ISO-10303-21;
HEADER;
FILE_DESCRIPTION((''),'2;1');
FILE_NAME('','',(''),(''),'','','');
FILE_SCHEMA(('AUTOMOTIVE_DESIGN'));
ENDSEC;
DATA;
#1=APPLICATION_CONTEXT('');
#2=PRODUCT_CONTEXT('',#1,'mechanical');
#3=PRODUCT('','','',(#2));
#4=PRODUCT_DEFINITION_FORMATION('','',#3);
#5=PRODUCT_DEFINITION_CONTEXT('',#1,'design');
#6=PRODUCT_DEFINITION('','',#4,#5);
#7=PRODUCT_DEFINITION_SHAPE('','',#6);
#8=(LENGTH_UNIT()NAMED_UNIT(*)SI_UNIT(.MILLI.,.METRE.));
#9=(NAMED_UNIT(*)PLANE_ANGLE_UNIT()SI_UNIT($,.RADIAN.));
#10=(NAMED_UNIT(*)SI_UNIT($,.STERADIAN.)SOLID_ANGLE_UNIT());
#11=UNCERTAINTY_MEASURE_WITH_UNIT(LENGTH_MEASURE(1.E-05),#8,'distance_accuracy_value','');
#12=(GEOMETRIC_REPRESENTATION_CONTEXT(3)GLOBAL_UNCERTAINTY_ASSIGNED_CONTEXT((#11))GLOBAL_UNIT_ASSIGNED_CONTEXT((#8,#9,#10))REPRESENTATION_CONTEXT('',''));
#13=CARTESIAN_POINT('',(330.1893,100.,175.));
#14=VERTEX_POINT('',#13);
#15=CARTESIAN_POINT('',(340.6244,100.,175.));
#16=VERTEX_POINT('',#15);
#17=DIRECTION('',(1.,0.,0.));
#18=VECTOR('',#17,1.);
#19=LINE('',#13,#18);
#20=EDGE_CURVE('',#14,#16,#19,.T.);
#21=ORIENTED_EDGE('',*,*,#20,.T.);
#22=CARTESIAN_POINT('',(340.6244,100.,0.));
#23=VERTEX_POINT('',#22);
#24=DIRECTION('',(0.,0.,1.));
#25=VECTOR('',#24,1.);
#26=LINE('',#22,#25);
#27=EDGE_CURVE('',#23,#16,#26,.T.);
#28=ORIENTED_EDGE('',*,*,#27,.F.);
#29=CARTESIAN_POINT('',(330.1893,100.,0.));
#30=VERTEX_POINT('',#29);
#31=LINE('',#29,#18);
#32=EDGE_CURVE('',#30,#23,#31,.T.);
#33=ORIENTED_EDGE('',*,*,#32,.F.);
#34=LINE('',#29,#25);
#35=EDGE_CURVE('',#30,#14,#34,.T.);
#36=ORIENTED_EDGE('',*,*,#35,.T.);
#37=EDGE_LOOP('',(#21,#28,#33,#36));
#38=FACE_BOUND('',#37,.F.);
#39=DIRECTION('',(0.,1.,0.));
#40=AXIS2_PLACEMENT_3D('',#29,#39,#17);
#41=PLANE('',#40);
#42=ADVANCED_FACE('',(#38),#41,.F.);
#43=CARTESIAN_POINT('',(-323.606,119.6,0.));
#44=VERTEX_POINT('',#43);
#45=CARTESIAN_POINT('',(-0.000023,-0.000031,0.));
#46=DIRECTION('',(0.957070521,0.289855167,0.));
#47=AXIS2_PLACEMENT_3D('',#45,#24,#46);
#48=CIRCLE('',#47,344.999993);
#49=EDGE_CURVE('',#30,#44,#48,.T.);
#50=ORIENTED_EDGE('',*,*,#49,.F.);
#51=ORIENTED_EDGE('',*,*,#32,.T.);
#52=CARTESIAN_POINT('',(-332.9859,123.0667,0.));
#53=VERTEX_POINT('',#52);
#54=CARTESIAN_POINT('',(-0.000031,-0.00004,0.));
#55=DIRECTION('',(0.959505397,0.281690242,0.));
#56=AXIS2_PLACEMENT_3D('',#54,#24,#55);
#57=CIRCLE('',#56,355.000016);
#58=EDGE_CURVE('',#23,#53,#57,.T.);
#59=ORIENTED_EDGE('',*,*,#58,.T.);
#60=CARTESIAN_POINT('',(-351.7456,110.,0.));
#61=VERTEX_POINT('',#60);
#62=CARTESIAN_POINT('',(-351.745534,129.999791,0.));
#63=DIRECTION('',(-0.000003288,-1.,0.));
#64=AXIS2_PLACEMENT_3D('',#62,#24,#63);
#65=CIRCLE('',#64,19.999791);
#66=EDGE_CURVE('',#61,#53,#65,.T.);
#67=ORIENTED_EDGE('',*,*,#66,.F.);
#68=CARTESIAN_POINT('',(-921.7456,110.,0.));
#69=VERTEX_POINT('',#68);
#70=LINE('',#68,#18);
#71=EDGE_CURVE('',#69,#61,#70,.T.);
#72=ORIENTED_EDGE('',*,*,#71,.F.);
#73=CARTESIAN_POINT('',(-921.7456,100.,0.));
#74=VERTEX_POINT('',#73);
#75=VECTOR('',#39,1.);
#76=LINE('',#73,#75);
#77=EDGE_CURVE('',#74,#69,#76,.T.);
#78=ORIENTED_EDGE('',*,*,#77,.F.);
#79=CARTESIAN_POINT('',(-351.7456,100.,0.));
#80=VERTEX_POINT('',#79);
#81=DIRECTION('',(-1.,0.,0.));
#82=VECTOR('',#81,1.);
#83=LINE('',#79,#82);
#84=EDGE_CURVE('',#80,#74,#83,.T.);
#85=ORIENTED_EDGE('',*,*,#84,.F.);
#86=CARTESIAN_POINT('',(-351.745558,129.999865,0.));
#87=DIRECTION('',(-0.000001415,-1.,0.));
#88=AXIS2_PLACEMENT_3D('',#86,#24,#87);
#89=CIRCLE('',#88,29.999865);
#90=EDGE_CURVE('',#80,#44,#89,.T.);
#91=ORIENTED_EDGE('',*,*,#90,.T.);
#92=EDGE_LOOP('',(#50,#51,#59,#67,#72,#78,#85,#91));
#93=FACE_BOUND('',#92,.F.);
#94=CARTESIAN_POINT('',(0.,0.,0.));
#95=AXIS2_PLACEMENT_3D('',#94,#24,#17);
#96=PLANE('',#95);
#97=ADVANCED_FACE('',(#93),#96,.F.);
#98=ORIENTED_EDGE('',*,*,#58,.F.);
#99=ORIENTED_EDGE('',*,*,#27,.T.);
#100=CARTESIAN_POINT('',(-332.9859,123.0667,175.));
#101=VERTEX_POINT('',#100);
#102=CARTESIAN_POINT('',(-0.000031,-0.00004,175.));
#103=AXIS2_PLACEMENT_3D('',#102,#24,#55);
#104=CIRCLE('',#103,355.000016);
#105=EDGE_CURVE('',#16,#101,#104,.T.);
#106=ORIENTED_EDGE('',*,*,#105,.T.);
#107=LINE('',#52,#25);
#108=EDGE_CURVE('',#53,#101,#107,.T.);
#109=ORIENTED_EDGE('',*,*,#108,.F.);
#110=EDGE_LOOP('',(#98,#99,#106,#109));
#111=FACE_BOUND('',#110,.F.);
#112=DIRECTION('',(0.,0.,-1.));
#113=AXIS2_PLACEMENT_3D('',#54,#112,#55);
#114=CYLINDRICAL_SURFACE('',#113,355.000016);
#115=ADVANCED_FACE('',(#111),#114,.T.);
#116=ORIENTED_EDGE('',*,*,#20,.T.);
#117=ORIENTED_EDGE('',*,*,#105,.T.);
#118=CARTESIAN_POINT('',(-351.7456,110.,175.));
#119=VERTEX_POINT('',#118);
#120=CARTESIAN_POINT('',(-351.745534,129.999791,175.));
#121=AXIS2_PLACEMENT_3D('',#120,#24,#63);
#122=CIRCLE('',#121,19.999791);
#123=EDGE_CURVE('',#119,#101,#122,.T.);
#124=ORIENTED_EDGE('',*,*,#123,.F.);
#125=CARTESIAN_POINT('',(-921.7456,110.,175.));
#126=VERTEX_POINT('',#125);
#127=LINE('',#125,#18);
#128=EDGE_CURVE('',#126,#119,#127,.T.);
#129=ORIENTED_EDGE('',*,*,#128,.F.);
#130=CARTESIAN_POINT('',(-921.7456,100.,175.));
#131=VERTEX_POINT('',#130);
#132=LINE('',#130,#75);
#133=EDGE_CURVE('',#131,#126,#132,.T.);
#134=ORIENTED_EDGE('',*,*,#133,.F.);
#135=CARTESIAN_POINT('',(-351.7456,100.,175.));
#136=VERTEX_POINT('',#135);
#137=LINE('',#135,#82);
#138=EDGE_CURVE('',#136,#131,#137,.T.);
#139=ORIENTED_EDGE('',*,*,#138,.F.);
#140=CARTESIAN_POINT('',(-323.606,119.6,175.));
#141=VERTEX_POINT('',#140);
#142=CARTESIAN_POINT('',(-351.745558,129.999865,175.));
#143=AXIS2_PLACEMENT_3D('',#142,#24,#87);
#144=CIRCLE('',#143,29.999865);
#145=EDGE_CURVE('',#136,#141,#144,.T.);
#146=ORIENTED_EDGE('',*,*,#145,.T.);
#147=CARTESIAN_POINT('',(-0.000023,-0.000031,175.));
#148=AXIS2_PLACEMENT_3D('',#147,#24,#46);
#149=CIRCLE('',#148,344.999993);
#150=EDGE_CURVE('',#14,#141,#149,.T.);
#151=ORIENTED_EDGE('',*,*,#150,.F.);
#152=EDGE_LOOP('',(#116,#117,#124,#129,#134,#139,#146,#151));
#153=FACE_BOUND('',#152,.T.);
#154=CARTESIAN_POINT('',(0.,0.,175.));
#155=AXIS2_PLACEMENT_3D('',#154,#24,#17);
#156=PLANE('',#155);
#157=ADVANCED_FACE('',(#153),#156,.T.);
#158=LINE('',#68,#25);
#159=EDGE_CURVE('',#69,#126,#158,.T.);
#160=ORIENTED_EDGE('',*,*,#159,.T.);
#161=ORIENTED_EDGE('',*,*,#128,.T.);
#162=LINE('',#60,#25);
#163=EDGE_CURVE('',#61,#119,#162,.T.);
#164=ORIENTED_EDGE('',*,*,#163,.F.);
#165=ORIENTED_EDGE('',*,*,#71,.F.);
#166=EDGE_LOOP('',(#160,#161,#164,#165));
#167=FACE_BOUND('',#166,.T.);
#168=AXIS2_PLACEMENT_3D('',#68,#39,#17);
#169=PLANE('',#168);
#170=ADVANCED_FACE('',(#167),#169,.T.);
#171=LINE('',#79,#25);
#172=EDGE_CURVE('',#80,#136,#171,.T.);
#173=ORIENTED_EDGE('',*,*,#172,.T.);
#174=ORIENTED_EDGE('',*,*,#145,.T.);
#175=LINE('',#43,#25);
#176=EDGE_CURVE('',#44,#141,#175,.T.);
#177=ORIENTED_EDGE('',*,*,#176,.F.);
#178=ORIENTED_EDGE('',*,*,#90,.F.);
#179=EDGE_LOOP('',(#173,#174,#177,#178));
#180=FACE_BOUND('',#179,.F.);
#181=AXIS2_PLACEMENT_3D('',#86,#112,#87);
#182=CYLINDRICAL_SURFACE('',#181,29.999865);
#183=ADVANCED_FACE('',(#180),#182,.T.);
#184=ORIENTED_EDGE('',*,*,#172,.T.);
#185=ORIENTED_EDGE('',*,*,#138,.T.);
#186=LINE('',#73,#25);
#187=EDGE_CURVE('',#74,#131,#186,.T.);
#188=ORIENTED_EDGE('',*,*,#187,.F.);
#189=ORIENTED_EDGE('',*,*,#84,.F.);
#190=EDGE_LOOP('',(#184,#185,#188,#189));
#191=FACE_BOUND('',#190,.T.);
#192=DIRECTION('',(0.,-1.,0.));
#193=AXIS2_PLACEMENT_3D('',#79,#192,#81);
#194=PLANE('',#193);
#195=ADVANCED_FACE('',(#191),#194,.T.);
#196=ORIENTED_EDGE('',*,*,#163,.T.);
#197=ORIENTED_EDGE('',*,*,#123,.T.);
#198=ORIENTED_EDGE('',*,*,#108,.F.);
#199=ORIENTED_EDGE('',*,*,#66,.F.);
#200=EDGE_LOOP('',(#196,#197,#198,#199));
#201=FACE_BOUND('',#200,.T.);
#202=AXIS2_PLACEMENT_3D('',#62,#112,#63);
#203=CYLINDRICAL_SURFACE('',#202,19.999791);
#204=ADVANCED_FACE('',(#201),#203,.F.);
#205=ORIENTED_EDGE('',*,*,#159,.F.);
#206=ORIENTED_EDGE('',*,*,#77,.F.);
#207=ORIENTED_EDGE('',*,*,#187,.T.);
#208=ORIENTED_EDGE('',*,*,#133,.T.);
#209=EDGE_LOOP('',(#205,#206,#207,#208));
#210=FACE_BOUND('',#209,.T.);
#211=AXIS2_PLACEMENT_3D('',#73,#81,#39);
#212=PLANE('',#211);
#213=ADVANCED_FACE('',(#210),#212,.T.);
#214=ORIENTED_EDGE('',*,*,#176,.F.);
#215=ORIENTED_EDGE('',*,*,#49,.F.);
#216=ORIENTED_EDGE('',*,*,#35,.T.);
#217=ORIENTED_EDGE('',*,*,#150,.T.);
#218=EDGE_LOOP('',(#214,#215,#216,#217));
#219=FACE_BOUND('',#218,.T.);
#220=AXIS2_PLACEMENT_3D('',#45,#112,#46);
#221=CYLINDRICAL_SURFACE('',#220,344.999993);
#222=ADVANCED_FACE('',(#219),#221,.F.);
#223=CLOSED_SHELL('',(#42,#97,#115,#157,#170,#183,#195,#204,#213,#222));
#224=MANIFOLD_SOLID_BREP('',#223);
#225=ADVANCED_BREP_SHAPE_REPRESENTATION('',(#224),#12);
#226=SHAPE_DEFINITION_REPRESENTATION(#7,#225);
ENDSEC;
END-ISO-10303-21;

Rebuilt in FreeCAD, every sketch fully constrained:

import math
import FreeCAD as App
import Part
import Sketcher

V = App.Vector
Q = App.Units.Quantity

doc = App.newDocument("Part")
params = doc.addObject("Spreadsheet::Sheet", "Params")
for row, (alias, value) in enumerate([
    ("sketch1_radius", "345 mm"),
    ("sketch1_radius2", "20 mm"),
    ("sketch1_radius3", "30 mm"),
    ("sketch1_width", "570 mm"),
    ("pad1_length", "175 mm"),
], start=1):
    params.set(f"A{row}", alias)
    params.set(f"B{row}", "=" + value)
    params.setAlias(f"B{row}", alias)

body = doc.addObject("PartDesign::Body", "Body")

# Sketch on XY plane
sketch1 = doc.addObject("Sketcher::SketchObject", "Sketch")
body.addObject(sketch1)
sketch1.AttachmentSupport = (doc.XY_Plane, [""])
sketch1.MapMode = "FlatFace"
sketch1.addGeometry([
    Part.ArcOfCircle(Part.Circle(V(0, 0, 0), V(0, 0, 1), 345), math.radians(17), math.radians(160)),  # 0
    Part.LineSegment(V(330, 100, 0), V(341, 100, 0)),  # 1
    Part.ArcOfCircle(Part.Circle(V(0, 0, 0), V(0, 0, 1), 355), math.radians(16), math.radians(160)),  # 2
    Part.ArcOfCircle(Part.Circle(V(-352, 130, 0), V(0, 0, 1), 20), math.radians(-90), math.radians(-20)),  # 3
    Part.LineSegment(V(-352, 110, 0), V(-922, 110, 0)),  # 4
    Part.LineSegment(V(-922, 110, 0), V(-922, 100, 0)),  # 5
    Part.LineSegment(V(-922, 100, 0), V(-352, 100, 0)),  # 6
    Part.ArcOfCircle(Part.Circle(V(-352, 130, 0), V(0, 0, 1), 30), math.radians(-90), math.radians(-20)),  # 7
], False)
sketch1.addConstraint([
    Sketcher.Constraint("Coincident", 0, 1, 1, 1),
    Sketcher.Constraint("Coincident", 1, 2, 2, 1),
    Sketcher.Constraint("Tangent", 2, 2, 3, 2),
    Sketcher.Constraint("Tangent", 3, 1, 4, 1),
    Sketcher.Constraint("Coincident", 4, 2, 5, 1),
    Sketcher.Constraint("Coincident", 5, 2, 6, 1),
    Sketcher.Constraint("Tangent", 6, 2, 7, 1),
    Sketcher.Constraint("Tangent", 7, 2, 0, 2),
    Sketcher.Constraint("Horizontal", 1),
    Sketcher.Constraint("Horizontal", 4),
    Sketcher.Constraint("Vertical", 5),
    Sketcher.Constraint("Horizontal", 6),
    Sketcher.Constraint("Coincident", 0, 3, -1, 1),
    Sketcher.Constraint("Coincident", 2, 3, -1, 1),
    Sketcher.Constraint("Coincident", 7, 3, 3, 3),
    Sketcher.Constraint("Horizontal", 1, 2, 5, 2),
    Sketcher.Constraint("Radius", 0, Q("345 mm")),
    Sketcher.Constraint("Radius", 3, Q("20 mm")),
    Sketcher.Constraint("Radius", 7, Q("30 mm")),
    Sketcher.Constraint("DistanceX", 4, 2, 4, 1, Q("570 mm")),
    Sketcher.Constraint("DistanceY", -1, 1, 3, 3, Q("130 mm")),
])
sketch1.setExpression("Constraints[16]", "Params.sketch1_radius")
sketch1.setExpression("Constraints[17]", "Params.sketch1_radius2")
sketch1.setExpression("Constraints[18]", "Params.sketch1_radius3")
sketch1.setExpression("Constraints[19]", "Params.sketch1_width")
pad1 = doc.addObject("PartDesign::Pad", "Pad")
body.addObject(pad1)
pad1.Profile = sketch1
pad1.setExpression("Length", "Params.pad1_length")

doc.recompute()
